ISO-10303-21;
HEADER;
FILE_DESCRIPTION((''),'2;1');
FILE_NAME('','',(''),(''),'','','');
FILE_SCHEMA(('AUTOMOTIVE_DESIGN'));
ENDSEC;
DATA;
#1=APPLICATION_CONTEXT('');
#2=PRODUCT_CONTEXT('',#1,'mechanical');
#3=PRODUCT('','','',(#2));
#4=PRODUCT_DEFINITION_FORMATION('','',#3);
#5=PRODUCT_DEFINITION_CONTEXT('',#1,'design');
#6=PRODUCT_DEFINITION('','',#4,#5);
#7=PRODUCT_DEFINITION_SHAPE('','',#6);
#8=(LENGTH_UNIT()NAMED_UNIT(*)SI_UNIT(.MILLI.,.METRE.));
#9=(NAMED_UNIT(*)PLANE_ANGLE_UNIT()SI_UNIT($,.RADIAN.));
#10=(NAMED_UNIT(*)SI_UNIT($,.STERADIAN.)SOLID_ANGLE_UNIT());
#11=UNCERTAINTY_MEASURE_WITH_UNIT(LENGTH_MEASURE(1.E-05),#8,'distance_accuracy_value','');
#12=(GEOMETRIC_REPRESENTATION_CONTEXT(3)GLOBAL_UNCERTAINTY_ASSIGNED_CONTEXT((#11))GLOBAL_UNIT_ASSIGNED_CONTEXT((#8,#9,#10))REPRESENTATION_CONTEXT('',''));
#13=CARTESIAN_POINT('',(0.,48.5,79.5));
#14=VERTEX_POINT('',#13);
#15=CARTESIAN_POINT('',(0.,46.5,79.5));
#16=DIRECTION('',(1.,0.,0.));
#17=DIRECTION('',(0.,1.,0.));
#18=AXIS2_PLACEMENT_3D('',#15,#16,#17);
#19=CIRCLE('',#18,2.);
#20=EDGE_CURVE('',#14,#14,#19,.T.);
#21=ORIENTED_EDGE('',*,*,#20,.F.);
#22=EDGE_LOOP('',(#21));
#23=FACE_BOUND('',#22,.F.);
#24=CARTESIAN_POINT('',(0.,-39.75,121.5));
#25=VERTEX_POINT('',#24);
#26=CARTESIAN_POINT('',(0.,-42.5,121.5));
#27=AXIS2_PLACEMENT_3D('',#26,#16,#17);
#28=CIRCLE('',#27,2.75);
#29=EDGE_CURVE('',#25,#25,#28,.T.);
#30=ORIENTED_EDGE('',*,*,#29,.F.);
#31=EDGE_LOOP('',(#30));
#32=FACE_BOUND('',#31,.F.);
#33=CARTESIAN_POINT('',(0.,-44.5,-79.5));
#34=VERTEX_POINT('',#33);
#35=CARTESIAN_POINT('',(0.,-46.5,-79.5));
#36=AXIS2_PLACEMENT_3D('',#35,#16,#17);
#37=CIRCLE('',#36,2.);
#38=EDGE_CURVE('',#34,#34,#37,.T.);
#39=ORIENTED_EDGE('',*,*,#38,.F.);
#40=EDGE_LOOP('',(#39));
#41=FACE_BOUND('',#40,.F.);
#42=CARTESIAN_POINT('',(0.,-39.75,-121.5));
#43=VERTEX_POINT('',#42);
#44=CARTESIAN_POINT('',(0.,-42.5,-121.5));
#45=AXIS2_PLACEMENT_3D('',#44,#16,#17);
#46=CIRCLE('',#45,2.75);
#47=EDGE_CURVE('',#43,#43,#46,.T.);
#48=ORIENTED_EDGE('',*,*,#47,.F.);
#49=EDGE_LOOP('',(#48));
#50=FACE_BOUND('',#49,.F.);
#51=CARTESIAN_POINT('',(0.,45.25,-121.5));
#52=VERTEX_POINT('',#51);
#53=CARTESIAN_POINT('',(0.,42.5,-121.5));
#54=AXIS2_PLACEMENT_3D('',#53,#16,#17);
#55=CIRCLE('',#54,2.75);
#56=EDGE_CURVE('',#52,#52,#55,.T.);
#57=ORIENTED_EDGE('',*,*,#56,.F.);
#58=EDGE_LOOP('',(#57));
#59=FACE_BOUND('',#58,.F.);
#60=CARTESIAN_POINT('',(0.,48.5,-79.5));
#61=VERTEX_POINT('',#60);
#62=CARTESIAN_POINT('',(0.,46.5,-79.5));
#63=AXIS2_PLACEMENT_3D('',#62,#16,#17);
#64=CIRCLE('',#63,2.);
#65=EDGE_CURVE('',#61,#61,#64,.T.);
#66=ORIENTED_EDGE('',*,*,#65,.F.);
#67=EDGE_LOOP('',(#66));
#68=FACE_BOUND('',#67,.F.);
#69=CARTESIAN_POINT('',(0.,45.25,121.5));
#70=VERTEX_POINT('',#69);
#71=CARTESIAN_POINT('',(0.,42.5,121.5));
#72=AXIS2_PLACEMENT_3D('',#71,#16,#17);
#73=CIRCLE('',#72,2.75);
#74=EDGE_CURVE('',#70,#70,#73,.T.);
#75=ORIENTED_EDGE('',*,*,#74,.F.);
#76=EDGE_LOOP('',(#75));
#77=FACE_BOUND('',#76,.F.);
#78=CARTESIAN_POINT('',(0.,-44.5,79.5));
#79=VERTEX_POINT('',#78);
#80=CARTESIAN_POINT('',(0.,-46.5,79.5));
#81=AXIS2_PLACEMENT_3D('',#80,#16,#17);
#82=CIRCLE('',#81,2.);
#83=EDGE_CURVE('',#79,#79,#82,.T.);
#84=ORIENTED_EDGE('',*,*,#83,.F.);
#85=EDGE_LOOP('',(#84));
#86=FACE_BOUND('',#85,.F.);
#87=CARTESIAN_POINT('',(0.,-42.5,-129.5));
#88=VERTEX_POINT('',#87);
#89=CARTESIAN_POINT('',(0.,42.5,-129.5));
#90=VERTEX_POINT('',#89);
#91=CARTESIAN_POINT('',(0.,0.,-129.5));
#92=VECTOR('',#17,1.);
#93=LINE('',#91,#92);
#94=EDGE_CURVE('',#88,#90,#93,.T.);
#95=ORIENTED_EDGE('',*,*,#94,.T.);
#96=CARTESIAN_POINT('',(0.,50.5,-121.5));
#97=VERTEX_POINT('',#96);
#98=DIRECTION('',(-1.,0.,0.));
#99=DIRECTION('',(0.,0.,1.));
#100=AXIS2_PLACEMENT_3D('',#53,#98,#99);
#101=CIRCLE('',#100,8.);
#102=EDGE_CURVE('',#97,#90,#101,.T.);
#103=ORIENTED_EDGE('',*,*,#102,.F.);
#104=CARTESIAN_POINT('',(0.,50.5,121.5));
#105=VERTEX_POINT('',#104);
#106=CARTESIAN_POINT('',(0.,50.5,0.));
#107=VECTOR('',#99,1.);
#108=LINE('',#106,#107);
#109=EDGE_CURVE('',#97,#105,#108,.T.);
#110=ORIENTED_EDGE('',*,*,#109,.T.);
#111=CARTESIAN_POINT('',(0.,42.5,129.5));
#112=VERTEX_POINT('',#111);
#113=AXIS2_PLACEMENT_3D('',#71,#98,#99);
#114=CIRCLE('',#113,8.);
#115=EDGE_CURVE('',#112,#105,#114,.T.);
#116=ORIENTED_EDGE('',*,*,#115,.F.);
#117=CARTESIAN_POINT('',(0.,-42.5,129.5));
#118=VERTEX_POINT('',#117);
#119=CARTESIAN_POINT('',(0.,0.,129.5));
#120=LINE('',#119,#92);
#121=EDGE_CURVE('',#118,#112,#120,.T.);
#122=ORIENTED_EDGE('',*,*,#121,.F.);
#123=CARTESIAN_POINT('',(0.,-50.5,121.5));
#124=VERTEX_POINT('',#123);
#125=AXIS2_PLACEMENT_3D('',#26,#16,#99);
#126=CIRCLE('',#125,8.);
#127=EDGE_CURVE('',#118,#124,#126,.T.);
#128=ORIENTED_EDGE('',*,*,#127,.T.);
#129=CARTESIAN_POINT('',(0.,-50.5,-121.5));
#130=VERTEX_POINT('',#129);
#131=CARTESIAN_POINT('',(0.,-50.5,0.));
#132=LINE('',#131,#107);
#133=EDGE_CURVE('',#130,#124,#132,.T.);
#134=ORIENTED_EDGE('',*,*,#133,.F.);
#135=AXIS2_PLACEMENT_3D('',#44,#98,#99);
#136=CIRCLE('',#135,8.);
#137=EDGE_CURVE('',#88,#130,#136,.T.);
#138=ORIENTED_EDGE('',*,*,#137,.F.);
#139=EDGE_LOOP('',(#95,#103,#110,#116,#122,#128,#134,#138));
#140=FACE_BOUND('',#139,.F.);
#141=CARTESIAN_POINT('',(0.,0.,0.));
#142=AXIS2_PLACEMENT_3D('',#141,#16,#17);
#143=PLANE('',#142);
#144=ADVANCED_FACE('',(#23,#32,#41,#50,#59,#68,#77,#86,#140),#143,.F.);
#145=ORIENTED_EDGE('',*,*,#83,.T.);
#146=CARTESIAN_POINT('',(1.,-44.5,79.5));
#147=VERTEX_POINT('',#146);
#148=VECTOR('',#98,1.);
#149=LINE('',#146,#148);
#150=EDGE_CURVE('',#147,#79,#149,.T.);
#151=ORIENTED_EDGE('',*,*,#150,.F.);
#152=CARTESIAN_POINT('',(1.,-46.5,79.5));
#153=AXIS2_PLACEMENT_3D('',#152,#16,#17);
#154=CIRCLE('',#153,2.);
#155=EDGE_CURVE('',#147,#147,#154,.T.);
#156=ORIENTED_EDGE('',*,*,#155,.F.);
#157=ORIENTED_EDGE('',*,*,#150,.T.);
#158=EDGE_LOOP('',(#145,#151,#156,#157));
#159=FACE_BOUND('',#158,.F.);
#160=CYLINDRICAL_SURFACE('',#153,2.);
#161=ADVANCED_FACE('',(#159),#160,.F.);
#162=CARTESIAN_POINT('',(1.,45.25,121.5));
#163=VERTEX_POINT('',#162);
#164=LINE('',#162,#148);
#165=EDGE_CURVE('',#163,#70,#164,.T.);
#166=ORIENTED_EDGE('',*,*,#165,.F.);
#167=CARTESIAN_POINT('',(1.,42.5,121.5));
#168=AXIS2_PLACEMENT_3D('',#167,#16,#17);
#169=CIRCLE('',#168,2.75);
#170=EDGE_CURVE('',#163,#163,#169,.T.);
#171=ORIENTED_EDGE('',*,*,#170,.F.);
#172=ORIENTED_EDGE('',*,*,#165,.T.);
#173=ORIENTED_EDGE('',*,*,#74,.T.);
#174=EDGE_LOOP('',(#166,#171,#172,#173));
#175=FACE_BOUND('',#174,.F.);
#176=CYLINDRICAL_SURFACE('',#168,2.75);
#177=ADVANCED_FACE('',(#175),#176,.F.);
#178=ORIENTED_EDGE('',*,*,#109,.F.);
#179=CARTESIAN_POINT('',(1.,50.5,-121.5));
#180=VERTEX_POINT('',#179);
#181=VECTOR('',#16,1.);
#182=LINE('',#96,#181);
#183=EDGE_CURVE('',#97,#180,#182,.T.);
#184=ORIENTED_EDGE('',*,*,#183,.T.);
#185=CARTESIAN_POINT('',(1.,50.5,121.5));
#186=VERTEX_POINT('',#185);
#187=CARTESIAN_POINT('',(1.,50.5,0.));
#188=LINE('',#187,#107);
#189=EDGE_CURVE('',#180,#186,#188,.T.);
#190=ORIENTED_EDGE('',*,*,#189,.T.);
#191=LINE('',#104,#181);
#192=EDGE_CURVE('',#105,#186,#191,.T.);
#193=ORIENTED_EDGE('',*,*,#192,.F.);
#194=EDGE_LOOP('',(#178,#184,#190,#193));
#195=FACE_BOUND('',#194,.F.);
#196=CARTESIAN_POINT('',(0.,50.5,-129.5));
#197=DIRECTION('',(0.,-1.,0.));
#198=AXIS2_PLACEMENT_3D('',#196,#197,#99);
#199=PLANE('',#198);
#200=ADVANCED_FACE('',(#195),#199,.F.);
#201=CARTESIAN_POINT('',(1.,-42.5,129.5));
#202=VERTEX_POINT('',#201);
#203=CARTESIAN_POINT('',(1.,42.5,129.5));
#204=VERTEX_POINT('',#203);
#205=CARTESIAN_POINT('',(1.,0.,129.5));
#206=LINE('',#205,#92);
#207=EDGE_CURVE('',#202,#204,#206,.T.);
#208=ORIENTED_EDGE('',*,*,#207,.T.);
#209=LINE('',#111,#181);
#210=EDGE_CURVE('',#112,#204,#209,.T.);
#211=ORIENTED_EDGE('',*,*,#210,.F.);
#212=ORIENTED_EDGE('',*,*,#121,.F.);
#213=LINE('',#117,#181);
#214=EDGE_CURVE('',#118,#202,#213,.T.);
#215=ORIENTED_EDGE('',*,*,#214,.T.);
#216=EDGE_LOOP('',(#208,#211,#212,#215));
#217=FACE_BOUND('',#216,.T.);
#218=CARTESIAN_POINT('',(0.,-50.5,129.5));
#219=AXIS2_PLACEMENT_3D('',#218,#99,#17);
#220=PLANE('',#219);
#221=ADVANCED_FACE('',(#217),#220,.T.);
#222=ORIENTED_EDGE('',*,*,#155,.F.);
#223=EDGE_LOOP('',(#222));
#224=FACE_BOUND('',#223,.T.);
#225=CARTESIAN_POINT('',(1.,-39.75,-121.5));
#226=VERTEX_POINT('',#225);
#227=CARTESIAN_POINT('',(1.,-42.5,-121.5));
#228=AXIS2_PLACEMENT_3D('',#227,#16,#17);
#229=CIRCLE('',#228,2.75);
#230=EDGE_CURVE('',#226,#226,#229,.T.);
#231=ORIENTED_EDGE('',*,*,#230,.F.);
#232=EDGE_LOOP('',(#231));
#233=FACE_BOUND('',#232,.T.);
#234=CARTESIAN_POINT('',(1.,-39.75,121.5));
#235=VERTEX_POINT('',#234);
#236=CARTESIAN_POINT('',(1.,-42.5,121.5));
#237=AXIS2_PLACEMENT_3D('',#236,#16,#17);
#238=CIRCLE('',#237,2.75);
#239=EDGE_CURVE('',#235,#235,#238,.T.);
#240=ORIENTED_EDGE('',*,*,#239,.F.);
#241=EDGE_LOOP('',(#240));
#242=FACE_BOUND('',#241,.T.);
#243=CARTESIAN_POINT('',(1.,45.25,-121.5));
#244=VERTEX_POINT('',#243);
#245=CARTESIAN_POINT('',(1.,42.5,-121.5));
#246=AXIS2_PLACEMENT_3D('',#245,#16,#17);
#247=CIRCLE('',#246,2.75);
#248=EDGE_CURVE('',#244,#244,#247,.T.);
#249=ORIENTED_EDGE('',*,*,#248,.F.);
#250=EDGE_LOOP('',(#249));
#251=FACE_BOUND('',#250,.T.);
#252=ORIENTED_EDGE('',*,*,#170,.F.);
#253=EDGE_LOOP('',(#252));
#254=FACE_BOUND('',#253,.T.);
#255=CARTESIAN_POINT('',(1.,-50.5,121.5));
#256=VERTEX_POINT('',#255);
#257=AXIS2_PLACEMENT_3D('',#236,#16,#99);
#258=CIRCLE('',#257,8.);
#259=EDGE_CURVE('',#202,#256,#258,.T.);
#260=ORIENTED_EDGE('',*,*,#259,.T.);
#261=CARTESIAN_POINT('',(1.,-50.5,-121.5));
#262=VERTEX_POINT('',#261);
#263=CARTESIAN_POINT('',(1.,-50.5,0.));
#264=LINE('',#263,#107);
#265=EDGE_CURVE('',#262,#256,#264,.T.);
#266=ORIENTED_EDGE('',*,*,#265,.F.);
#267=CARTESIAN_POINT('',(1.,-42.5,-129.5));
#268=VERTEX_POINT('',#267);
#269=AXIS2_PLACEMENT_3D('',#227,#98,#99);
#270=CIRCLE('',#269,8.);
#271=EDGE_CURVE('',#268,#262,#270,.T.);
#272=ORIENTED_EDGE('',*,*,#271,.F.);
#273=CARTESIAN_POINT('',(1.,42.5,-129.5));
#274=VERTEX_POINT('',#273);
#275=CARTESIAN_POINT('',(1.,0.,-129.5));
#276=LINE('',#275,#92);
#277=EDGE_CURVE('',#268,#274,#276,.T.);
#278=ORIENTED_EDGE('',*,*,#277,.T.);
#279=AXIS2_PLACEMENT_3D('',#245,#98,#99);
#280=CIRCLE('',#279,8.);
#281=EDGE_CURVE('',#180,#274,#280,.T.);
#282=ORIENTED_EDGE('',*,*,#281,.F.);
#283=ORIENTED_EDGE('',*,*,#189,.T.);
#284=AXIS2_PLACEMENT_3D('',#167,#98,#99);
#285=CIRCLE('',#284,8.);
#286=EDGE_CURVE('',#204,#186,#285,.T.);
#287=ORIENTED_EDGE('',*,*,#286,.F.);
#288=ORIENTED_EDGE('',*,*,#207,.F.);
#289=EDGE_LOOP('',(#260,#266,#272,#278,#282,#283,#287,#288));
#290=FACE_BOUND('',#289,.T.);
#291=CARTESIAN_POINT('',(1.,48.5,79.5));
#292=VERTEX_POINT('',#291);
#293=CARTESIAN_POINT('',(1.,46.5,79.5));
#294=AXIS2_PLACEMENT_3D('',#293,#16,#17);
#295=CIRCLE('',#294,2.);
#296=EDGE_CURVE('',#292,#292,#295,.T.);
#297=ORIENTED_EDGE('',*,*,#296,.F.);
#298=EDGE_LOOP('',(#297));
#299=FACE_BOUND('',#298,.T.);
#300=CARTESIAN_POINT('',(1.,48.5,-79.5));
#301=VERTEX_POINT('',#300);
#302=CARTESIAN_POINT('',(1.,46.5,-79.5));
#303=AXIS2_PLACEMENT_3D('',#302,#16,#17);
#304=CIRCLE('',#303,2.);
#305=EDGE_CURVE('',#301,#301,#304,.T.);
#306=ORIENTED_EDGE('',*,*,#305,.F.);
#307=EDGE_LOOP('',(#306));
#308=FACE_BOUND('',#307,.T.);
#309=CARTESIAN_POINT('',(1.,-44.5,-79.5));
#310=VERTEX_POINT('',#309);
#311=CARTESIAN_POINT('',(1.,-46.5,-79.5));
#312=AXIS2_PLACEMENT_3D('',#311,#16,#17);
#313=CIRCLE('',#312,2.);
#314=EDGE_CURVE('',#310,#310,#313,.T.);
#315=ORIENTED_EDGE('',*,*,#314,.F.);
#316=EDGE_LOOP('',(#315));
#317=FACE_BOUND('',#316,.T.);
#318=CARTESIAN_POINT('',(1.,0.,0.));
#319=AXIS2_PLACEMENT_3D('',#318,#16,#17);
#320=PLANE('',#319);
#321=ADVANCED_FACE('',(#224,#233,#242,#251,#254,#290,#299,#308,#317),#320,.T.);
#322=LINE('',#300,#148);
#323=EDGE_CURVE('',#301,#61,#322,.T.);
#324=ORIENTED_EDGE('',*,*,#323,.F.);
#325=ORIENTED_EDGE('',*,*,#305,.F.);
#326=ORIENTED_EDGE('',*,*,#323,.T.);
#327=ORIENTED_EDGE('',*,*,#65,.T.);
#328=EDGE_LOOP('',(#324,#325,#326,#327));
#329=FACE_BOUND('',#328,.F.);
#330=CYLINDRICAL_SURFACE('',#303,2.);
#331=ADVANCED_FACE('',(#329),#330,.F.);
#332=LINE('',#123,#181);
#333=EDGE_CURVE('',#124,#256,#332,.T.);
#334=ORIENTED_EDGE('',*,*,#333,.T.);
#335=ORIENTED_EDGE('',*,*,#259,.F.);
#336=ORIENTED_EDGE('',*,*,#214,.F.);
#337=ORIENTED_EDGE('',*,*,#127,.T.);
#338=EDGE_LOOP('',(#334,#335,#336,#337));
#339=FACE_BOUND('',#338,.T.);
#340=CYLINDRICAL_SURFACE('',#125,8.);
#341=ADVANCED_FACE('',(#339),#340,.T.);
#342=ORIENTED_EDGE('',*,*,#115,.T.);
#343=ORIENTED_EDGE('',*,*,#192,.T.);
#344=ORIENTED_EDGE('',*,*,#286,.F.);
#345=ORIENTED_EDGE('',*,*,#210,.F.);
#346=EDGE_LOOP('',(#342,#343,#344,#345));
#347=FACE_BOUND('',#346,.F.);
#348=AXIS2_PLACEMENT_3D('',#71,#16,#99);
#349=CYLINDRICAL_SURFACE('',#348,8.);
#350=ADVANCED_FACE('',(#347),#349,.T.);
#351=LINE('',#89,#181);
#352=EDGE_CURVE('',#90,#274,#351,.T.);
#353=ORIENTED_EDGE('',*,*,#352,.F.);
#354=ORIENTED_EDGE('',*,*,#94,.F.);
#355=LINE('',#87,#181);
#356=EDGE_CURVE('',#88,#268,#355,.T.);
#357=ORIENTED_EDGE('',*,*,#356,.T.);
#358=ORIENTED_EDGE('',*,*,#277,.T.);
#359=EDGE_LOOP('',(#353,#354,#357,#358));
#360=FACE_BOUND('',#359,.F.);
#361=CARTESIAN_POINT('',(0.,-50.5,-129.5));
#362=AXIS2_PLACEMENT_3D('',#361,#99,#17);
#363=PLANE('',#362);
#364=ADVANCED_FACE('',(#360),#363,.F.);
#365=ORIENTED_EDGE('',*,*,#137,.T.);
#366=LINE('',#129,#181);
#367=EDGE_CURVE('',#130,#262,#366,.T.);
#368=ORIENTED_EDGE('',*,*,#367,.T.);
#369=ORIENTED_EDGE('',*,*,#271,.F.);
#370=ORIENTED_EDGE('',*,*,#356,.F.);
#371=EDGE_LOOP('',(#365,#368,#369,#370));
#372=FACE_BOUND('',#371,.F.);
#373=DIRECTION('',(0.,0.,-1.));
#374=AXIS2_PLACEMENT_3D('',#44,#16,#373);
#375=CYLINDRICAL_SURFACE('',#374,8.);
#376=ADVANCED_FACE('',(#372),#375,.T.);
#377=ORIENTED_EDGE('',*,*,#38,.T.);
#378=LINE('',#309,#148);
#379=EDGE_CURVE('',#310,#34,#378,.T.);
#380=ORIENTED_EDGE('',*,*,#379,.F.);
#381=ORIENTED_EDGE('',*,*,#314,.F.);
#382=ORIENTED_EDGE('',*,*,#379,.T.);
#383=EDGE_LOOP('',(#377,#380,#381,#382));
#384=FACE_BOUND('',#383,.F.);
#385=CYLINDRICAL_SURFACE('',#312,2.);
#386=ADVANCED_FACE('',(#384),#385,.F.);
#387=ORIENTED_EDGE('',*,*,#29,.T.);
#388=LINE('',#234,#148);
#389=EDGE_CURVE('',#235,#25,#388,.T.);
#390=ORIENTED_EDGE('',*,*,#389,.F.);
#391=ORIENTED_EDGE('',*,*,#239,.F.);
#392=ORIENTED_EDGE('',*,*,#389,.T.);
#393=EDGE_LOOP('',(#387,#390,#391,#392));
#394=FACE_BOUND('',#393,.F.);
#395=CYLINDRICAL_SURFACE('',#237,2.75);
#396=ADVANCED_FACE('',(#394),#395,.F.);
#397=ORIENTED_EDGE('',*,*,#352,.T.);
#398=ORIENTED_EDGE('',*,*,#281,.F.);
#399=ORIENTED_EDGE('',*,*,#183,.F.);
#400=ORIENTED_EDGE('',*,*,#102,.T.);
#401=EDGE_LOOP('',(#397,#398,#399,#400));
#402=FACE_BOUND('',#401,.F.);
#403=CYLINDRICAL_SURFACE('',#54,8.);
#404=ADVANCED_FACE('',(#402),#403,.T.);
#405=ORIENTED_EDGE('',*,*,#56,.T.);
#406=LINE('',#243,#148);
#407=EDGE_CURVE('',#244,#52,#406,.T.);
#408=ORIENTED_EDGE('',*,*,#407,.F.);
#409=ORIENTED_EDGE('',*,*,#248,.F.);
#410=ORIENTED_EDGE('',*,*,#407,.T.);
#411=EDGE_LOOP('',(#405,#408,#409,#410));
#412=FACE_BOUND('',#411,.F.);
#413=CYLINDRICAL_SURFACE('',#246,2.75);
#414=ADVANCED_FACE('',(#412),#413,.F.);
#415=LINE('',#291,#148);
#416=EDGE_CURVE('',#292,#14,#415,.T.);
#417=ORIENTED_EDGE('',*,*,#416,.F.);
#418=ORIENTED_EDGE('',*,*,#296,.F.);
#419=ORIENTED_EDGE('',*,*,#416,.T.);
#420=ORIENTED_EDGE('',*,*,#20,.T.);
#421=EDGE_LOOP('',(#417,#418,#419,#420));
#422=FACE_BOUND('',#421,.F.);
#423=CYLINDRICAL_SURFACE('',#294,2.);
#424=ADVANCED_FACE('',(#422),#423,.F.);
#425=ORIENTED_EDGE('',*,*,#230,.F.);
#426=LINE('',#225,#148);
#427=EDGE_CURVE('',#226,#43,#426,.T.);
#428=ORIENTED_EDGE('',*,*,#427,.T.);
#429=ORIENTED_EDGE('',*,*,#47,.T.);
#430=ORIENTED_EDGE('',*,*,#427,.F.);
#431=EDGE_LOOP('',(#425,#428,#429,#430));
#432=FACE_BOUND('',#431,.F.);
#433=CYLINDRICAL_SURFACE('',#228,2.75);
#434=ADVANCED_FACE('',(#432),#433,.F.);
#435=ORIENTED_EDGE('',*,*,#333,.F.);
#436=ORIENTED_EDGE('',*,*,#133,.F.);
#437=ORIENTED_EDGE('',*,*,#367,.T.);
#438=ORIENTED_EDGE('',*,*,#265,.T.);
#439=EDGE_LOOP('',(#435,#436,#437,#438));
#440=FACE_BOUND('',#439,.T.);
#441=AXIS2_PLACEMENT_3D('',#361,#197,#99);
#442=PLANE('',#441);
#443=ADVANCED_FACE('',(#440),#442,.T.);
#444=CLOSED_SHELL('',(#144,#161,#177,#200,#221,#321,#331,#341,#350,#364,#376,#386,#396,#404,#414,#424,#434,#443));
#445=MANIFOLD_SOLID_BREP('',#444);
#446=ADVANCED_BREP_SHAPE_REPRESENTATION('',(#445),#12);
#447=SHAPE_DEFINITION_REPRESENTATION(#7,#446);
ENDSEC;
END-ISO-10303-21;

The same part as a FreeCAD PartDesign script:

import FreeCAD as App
import Part
import Sketcher
from FreeCAD import Vector


def edges_at(feature, points):
    """Names of the edges that pass closest to the given points."""
    edges = feature.Shape.Edges
    near = lambda p: min(range(len(edges)), key=lambda i: edges[i].distToShape(Part.Vertex(*p))[0])
    return sorted({f"Edge{near(p) + 1}" for p in points})

doc = App.newDocument("Part")
body = doc.addObject("PartDesign::Body", "Body")

# Sketch on YZ plane
sketch1 = body.newObject("Sketcher::SketchObject", "Sketch")
sketch1.AttachmentSupport = (doc.getObject("YZ_Plane"), [""])
sketch1.MapMode = "FlatFace"
sketch1.addGeometry([
    Part.LineSegment(Vector(-50, 130, 0), Vector(-50, -130, 0)),
    Part.LineSegment(Vector(-50, -130, 0), Vector(50, -130, 0)),
    Part.LineSegment(Vector(50, -130, 0), Vector(50, 130, 0)),
    Part.LineSegment(Vector(50, 130, 0), Vector(-50, 130, 0)),
], False)
sketch1.addConstraint([
    Sketcher.Constraint("Coincident", 0, 2, 1, 1),
    Sketcher.Constraint("Coincident", 1, 2, 2, 1),
    Sketcher.Constraint("Coincident", 2, 2, 3, 1),
    Sketcher.Constraint("Coincident", 3, 2, 0, 1),
    Sketcher.Constraint("Vertical", 0),
    Sketcher.Constraint("Horizontal", 1),
    Sketcher.Constraint("Vertical", 2),
    Sketcher.Constraint("Horizontal", 3),
    Sketcher.Constraint("Symmetric", 0, 2, 2, 2, -1, 1),
    Sketcher.Constraint("DistanceX", 1, 1, 1, 2, 101.0),
    Sketcher.Constraint("DistanceY", 0, 2, 0, 1, 259.0),
])
pad1 = body.newObject("PartDesign::Pad", "Pad")
pad1.Profile = sketch1
pad1.Length = 1

# Sketch on YZ plane
sketch2 = body.newObject("Sketcher::SketchObject", "Sketch001")
sketch2.AttachmentSupport = (doc.getObject("YZ_Plane"), [""])
sketch2.MapMode = "FlatFace"
sketch2.AttachmentOffset = App.Placement(Vector(0, 0, 1), App.Rotation())
sketch2.addGeometry([
    Part.Circle(Vector(42.5, 121.5, 0), Vector(0, 0, 1), 2.8),  # 0
    Part.Circle(Vector(-42.5, 121.5, 0), Vector(0, 0, 1), 2.8),  # 1
    Part.Circle(Vector(-42.5, -121.5, 0), Vector(0, 0, 1), 2.8),  # 2
    Part.Circle(Vector(42.5, -121.5, 0), Vector(0, 0, 1), 2.8),  # 3
    Part.Circle(Vector(-46.5, 79.5, 0), Vector(0, 0, 1), 2),  # 4
    Part.Circle(Vector(46.5, 79.5, 0), Vector(0, 0, 1), 2),  # 5
    Part.Circle(Vector(-46.5, -79.5, 0), Vector(0, 0, 1), 2),  # 6
    Part.Circle(Vector(46.5, -79.5, 0), Vector(0, 0, 1), 2),  # 7
], False)
sketch2.addConstraint([
    Sketcher.Constraint("Equal", 0, 1),
    Sketcher.Constraint("Equal", 1, 2),
    Sketcher.Constraint("Equal", 2, 3),
    Sketcher.Constraint("Equal", 4, 5),
    Sketcher.Constraint("Equal", 5, 6),
    Sketcher.Constraint("Equal", 6, 7),
    Sketcher.Constraint("Symmetric", 0, 3, 2, 3, -1, 1),
    Sketcher.Constraint("Symmetric", 1, 3, 3, 3, -1, 1),
    Sketcher.Constraint("Symmetric", 5, 3, 6, 3, -1, 1),
    Sketcher.Constraint("Symmetric", 4, 3, 7, 3, -1, 1),
    Sketcher.Constraint("Symmetric", 0, 3, 1, 3, -2),
    Sketcher.Constraint("Symmetric", 4, 3, 5, 3, -2),
    Sketcher.Constraint("Diameter", 4, 4.0),
    Sketcher.Constraint("Diameter", 0, 5.5),
    Sketcher.Constraint("DistanceX", 1, 3, 0, 3, 85.0),
    Sketcher.Constraint("DistanceY", 2, 3, 1, 3, 243.0),
    Sketcher.Constraint("DistanceX", 4, 3, 1, 3, 4.0),
    Sketcher.Constraint("DistanceY", 4, 3, 1, 3, 42.0),
])
pocket1 = body.newObject("PartDesign::Pocket", "Pocket")
pocket1.Profile = sketch2
pocket1.Type = "ThroughAll"
doc.recompute()

fillet = body.newObject("PartDesign::Fillet", "Fillet")
fillet.Base = (pocket1, edges_at(pocket1, [(0.5, 50.5, 129.5)]))
fillet.Radius = 8
doc.recompute()

fillet2 = body.newObject("PartDesign::Fillet", "Fillet001")
fillet2.Base = (fillet, edges_at(fillet, [(0.5, -50.5, 129.5)]))
fillet2.Radius = 8
doc.recompute()

fillet3 = body.newObject("PartDesign::Fillet", "Fillet002")
fillet3.Base = (fillet2, edges_at(fillet2, [(0.5, 50.5, -129.5)]))
fillet3.Radius = 8
doc.recompute()

fillet4 = body.newObject("PartDesign::Fillet", "Fillet003")
fillet4.Base = (fillet3, edges_at(fillet3, [(0.5, -50.5, -129.5)]))
fillet4.Radius = 8

doc.recompute()
